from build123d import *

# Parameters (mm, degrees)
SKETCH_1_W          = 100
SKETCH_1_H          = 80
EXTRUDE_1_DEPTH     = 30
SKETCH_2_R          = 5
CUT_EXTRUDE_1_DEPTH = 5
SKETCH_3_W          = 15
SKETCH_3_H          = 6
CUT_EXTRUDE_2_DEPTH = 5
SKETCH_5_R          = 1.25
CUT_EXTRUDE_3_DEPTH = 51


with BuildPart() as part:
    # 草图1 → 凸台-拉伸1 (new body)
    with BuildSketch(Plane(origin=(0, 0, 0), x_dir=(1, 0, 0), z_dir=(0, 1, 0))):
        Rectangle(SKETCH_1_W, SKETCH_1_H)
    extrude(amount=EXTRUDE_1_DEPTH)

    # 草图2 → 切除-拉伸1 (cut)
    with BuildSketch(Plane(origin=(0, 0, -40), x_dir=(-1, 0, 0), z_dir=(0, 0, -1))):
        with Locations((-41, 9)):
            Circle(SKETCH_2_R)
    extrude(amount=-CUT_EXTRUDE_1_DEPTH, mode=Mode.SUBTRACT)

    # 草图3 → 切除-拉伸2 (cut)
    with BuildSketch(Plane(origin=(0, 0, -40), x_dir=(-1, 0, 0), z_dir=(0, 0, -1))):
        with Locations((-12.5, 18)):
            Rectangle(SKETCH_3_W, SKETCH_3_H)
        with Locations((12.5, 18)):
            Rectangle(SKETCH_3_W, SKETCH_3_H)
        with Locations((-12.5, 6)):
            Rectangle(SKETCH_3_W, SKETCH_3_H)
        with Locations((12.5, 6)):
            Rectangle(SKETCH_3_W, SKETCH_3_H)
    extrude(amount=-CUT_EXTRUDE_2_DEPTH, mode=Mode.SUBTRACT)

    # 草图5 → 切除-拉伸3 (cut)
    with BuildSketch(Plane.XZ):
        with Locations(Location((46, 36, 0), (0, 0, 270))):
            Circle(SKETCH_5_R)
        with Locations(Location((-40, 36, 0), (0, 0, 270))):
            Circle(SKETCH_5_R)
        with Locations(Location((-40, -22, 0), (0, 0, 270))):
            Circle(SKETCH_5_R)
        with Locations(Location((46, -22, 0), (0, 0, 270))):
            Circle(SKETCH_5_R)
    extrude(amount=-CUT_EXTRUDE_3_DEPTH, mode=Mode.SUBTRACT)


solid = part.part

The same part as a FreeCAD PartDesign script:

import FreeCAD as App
import Part
import Sketcher
from FreeCAD import Vector
Q = App.Units.Quantity


def add_polygon(sketch, points):
    """Adds a closed chain of lines whose ends are joined by coincident constraints."""
    first, n = sketch.GeometryCount, len(points)
    for a, b in zip(points, points[1:] + points[:1]):
        sketch.addGeometry(Part.LineSegment(App.Vector(*a, 0), App.Vector(*b, 0)), False)
    for i in range(n):
        sketch.addConstraint(Sketcher.Constraint("Coincident", first + i, 2, first + (i + 1) % n, 1))

doc = App.newDocument("Part")
params = doc.addObject("Spreadsheet::Sheet", "Params")
for row, (alias, value) in enumerate([
    ("sketch1_width", "100 mm"),
    ("sketch1_height", "80 mm"),
    ("pad1_length", "30 mm"),
    ("sketch2_diameter", "10 mm"),
    ("pocket1_length", "5 mm"),
    ("sketch3_width", "15 mm"),
    ("sketch3_height", "6 mm"),
    ("pocket2_length", "5 mm"),
    ("sketch4_diameter", "2.5 mm"),
    ("pocket3_length", "51 mm"),
], start=1):
    params.set(f"A{row}", alias)
    params.set(f"B{row}", "=" + value)
    params.setAlias(f"B{row}", alias)

body = doc.addObject("PartDesign::Body", "Body")

# Sketch on XZ plane
sketch1 = body.newObject("Sketcher::SketchObject", "Sketch")
sketch1.AttachmentSupport = (doc.getObject("XZ_Plane"), [""])
sketch1.MapMode = "FlatFace"
add_polygon(sketch1, [(-50, -40), (-50, 40), (50, 40), (50, -40)])  # lines 0-3
sketch1.addConstraint([
    Sketcher.Constraint("Vertical", 0),
    Sketcher.Constraint("Horizontal", 1),
    Sketcher.Constraint("Vertical", 2),
    Sketcher.Constraint("Horizontal", 3),
    Sketcher.Constraint("Symmetric", 0, 2, 2, 2, -1, 1),
    Sketcher.Constraint("DistanceX", 1, 1, 1, 2, Q("100 mm")),
    Sketcher.Constraint("DistanceY", 0, 1, 0, 2, Q("80 mm")),
])
sketch1.setExpression("Constraints[9]", "Params.sketch1_width")
sketch1.setExpression("Constraints[10]", "Params.sketch1_height")
pad1 = body.newObject("PartDesign::Pad", "Pad")
pad1.Profile = sketch1
pad1.setExpression("Length", "Params.pad1_length")
pad1.Reversed = True

# Sketch on XY plane
sketch2 = body.newObject("Sketcher::SketchObject", "Sketch001")
sketch2.AttachmentSupport = (doc.getObject("XY_Plane"), [""])
sketch2.MapMode = "FlatFace"
sketch2.AttachmentOffset = App.Placement(Vector(0, 0, -40), App.Rotation())
sketch2.addGeometry(Part.Circle(Vector(41, 9, 0), Vector(0, 0, 1), 5), False)
sketch2.addConstraint([
    Sketcher.Constraint("Diameter", 0, Q("10 mm")),
    Sketcher.Constraint("DistanceX", -1, 1, 0, 3, Q("41 mm")),
    Sketcher.Constraint("DistanceY", -1, 1, 0, 3, Q("9 mm")),
])
sketch2.setExpression("Constraints[0]", "Params.sketch2_diameter")
pocket1 = body.newObject("PartDesign::Pocket", "Pocket")
pocket1.Profile = sketch2
pocket1.setExpression("Length", "Params.pocket1_length")
pocket1.Reversed = True

# Sketch on XY plane
sketch3 = body.newObject("Sketcher::SketchObject", "Sketch002")
sketch3.AttachmentSupport = (doc.getObject("XY_Plane"), [""])
sketch3.MapMode = "FlatFace"
sketch3.AttachmentOffset = App.Placement(Vector(0, 0, -40), App.Rotation())
add_polygon(sketch3, [(20, 21), (20, 15), (5, 15), (5, 21)])  # lines 0-3
add_polygon(sketch3, [(-5, 21), (-5, 15), (-20, 15), (-20, 21)])  # lines 4-7
add_polygon(sketch3, [(20, 9), (20, 3), (5, 3), (5, 9)])  # lines 8-11
add_polygon(sketch3, [(-5, 9), (-5, 3), (-20, 3), (-20, 9)])  # lines 12-15
sketch3.addConstraint([
    Sketcher.Constraint("Vertical", 0),
    Sketcher.Constraint("Horizontal", 1),
    Sketcher.Constraint("Vertical", 2),
    Sketcher.Constraint("Horizontal", 3),
    Sketcher.Constraint("Vertical", 4),
    Sketcher.Constraint("Horizontal", 5),
    Sketcher.Constraint("Vertical", 6),
    Sketcher.Constraint("Horizontal", 7),
    Sketcher.Constraint("Vertical", 8),
    Sketcher.Constraint("Horizontal", 9),
    Sketcher.Constraint("Vertical", 10),
    Sketcher.Constraint("Horizontal", 11),
    Sketcher.Constraint("Vertical", 12),
    Sketcher.Constraint("Horizontal", 13),
    Sketcher.Constraint("Vertical", 14),
    Sketcher.Constraint("Horizontal", 15),
    Sketcher.Constraint("Symmetric", 1, 2, 4, 2, -2),
    Sketcher.Constraint("Symmetric", 3, 2, 6, 2, -2),
    Sketcher.Constraint("Symmetric", 9, 2, 12, 2, -2),
    Sketcher.Constraint("Symmetric", 11, 2, 14, 2, -2),
    Sketcher.Constraint("Vertical", 3, 2, 8, 2),
    Sketcher.Constraint("Vertical", 2, 2, 9, 2),
    Sketcher.Constraint("Equal", 6, 8),
    Sketcher.Constraint("DistanceX", 1, 2, 1, 1, Q("15 mm")),
    Sketcher.Constraint("DistanceY", 0, 2, 0, 1, Q("6 mm")),
    Sketcher.Constraint("DistanceX", -1, 1, 0, 2, Q("20 mm")),
    Sketcher.Constraint("DistanceY", -1, 1, 0, 2, Q("15 mm")),
    Sketcher.Constraint("DistanceY", -1, 1, 8, 2, Q("3 mm")),
])
sketch3.setExpression("Constraints[39]", "Params.sketch3_width")
sketch3.setExpression("Constraints[40]", "Params.sketch3_height")
pocket2 = body.newObject("PartDesign::Pocket", "Pocket001")
pocket2.Profile = sketch3
pocket2.setExpression("Length", "Params.pocket2_length")
pocket2.Reversed = True

# Sketch on XZ plane
sketch4 = body.newObject("Sketcher::SketchObject", "Sketch003")
sketch4.AttachmentSupport = (doc.getObject("XZ_Plane"), [""])
sketch4.MapMode = "FlatFace"
sketch4.addGeometry([
    Part.Circle(Vector(46, 36, 0), Vector(0, 0, 1), 1.25),
    Part.Circle(Vector(-40, 36, 0), Vector(0, 0, 1), 1.25),
    Part.Circle(Vector(-40, -22, 0), Vector(0, 0, 1), 1.25),
    Part.Circle(Vector(46, -22, 0), Vector(0, 0, 1), 1.25),
], False)
sketch4.addConstraint([
    Sketcher.Constraint("Equal", 0, 1),
    Sketcher.Constraint("Equal", 1, 2),
    Sketcher.Constraint("Equal", 2, 3),
    Sketcher.Constraint("Horizontal", 0, 3, 1, 3),
    Sketcher.Constraint("Horizontal", 2, 3, 3, 3),
    Sketcher.Constraint("Vertical", 1, 3, 2, 3),
    Sketcher.Constraint("Vertical", 0, 3, 3, 3),
    Sketcher.Constraint("Diameter", 0, Q("2.5 mm")),
    Sketcher.Constraint("DistanceX", -1, 1, 0, 3, Q("46 mm")),
    Sketcher.Constraint("DistanceY", -1, 1, 0, 3, Q("36 mm")),
    Sketcher.Constraint("DistanceX", 1, 3, -1, 1, Q("40 mm")),
    Sketcher.Constraint("DistanceY", 2, 3, -1, 1, Q("22 mm")),
])
sketch4.setExpression("Constraints[7]", "Params.sketch4_diameter")
pocket3 = body.newObject("PartDesign::Pocket", "Pocket002")
pocket3.Profile = sketch4
pocket3.setExpression("Length", "Params.pocket3_length")

doc.recompute()
